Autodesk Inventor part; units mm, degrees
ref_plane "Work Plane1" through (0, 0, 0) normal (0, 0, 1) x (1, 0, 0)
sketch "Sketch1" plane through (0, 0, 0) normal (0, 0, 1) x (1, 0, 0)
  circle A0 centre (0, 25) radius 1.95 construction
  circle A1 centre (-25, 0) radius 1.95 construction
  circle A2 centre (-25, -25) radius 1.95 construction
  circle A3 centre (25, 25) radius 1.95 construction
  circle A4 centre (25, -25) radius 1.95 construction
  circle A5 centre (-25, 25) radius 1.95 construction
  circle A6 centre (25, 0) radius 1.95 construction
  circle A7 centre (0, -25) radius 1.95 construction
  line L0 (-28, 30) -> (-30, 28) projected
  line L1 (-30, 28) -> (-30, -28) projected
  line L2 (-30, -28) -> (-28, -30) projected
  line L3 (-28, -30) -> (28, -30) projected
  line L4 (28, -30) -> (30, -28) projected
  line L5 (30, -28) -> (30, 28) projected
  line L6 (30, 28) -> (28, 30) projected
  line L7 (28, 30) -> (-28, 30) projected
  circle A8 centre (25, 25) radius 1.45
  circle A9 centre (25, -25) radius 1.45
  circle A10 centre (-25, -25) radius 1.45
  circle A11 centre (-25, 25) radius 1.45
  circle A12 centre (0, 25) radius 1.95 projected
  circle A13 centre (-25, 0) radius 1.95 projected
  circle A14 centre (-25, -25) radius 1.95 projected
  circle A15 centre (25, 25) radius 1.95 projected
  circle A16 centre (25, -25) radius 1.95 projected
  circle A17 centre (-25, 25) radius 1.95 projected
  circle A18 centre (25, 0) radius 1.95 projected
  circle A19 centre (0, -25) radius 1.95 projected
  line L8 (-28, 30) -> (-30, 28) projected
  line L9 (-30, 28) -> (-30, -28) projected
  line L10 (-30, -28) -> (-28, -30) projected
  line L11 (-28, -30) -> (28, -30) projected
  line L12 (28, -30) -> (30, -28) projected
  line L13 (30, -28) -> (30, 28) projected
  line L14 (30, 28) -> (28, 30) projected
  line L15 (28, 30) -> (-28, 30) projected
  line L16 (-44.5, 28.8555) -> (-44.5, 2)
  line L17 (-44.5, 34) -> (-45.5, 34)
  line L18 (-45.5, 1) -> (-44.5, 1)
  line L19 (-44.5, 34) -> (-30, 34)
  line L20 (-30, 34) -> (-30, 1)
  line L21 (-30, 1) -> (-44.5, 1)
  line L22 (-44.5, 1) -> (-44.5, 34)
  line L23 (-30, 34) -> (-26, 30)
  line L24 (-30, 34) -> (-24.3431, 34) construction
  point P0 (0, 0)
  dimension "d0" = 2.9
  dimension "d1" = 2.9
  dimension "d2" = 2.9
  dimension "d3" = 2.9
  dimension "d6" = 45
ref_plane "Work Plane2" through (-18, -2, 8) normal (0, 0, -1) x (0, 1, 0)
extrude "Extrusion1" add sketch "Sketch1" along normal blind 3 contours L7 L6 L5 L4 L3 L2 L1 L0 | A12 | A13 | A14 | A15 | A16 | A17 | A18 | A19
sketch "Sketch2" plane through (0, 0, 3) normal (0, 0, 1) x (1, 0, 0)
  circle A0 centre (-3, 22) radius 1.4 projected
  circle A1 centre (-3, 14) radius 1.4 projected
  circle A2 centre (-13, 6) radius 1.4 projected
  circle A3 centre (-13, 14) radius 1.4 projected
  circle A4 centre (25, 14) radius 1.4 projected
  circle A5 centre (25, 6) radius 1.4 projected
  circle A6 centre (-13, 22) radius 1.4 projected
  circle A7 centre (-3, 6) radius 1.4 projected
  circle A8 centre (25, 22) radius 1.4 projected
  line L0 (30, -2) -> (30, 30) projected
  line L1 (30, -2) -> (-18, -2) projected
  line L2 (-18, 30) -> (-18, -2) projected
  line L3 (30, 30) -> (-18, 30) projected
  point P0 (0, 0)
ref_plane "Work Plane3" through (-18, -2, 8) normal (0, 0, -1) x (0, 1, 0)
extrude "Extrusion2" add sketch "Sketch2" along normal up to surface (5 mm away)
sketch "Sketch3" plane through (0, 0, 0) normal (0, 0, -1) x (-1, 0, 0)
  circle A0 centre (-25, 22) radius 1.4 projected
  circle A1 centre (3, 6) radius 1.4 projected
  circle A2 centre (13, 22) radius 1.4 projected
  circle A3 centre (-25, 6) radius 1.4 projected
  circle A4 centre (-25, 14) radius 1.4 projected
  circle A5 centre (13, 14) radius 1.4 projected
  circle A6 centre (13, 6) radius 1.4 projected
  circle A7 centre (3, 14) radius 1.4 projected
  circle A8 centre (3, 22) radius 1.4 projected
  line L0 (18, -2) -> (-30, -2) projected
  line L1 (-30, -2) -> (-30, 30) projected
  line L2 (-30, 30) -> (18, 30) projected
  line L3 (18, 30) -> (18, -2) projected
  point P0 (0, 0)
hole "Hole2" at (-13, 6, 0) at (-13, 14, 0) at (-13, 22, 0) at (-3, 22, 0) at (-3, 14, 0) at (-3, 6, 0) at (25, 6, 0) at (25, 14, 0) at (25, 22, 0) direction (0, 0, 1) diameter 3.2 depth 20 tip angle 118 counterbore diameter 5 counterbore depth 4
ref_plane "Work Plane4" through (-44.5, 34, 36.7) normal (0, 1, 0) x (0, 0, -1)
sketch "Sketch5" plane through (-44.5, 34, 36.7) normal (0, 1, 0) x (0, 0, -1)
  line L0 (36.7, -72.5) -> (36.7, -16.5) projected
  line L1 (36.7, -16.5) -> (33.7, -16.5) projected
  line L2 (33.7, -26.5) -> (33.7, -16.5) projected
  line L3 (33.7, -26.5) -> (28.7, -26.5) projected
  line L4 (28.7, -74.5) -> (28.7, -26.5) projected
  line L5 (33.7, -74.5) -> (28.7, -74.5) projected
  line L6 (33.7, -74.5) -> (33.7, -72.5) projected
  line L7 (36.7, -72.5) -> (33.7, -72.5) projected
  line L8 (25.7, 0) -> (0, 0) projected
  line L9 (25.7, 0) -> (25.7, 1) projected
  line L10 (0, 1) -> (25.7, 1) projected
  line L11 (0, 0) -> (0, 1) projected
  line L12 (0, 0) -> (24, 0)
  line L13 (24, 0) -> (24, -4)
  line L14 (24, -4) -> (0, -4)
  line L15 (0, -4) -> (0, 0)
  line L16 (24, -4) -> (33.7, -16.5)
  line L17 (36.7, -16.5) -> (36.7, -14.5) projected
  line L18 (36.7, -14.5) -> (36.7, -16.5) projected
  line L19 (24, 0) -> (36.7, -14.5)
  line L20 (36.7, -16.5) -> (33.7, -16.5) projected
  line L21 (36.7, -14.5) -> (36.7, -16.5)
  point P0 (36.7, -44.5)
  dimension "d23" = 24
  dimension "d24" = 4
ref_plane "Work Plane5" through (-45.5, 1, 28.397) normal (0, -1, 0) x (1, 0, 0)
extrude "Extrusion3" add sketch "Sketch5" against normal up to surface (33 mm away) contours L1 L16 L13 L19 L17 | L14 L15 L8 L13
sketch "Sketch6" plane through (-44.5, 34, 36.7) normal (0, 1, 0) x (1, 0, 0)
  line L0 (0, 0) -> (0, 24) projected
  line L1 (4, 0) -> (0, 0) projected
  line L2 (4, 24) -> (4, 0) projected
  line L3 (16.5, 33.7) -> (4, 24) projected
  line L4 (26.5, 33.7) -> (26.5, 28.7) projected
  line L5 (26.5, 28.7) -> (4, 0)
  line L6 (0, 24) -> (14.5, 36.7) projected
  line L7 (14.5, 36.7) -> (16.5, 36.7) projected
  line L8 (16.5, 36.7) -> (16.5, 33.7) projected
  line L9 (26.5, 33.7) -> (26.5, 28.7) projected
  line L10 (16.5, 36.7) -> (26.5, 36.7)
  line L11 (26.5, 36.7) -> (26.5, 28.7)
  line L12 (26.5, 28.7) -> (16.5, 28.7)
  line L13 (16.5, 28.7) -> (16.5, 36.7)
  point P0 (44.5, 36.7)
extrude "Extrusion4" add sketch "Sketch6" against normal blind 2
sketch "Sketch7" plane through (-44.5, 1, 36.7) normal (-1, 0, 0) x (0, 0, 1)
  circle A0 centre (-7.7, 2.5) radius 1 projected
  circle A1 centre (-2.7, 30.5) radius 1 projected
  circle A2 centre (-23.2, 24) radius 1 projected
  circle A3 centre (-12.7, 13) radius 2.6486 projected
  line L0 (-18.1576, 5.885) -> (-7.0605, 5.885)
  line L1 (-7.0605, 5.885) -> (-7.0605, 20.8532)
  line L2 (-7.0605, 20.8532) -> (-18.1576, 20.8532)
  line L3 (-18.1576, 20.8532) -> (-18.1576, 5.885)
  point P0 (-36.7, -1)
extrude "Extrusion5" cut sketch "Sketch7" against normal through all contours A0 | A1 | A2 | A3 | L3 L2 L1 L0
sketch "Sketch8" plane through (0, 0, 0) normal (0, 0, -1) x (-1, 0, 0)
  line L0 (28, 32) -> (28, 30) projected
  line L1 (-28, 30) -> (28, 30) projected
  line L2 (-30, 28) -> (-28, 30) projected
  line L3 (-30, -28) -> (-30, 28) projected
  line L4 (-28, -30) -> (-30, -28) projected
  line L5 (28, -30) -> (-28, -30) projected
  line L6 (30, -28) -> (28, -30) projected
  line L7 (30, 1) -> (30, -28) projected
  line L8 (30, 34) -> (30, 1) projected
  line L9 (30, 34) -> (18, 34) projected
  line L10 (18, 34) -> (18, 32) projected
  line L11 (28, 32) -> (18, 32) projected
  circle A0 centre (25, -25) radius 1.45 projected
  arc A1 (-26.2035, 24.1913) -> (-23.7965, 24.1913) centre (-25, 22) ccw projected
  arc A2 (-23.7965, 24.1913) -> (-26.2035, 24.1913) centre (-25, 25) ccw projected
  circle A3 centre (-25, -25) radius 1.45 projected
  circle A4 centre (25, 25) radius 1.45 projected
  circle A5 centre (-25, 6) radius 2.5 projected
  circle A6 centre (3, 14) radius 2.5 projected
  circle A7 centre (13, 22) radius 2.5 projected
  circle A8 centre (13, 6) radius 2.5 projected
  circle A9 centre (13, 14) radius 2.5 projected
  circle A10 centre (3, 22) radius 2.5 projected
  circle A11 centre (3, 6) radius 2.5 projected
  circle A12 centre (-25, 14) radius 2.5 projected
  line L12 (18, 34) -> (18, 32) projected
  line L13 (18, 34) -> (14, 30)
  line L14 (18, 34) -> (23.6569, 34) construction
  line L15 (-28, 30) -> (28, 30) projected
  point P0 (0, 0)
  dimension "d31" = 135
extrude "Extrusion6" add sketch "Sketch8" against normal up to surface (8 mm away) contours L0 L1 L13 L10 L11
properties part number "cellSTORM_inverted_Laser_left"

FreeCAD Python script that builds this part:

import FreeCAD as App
import Part
import Sketcher
from FreeCAD import Vector
Q = App.Units.Quantity


def add_polygon(sketch, points):
    """Adds a closed chain of lines whose ends are joined by coincident constraints."""
    first, n = sketch.GeometryCount, len(points)
    for a, b in zip(points, points[1:] + points[:1]):
        sketch.addGeometry(Part.LineSegment(App.Vector(*a, 0), App.Vector(*b, 0)), False)
    for i in range(n):
        sketch.addConstraint(Sketcher.Constraint("Coincident", first + i, 2, first + (i + 1) % n, 1))

doc = App.newDocument("Part")
body = doc.addObject("PartDesign::Body", "Body")

sketch1 = body.newObject("Sketcher::SketchObject", "Sketch")
sketch1.AttachmentSupport = (doc.getObject("XY_Plane"), [""])
sketch1.MapMode = "FlatFace"
add_polygon(sketch1, [(-28, 30), (-30, 28), (-30, -28), (-28, -30), (28, -30), (30, -28), (30, 28), (28, 30)])
sketch1.addGeometry(Part.Circle(Vector(-25, -25, 0), Vector(0, 0, 1), 1.45), False)
sketch1.addGeometry(Part.Circle(Vector(25, -25, 0), Vector(0, 0, 1), 1.45), False)
sketch1.addGeometry(Part.Circle(Vector(-25, 25, 0), Vector(0, 0, 1), 1.45), False)
sketch1.addGeometry(Part.Circle(Vector(25, 25, 0), Vector(0, 0, 1), 1.45), False)
sketch1.addConstraint(Sketcher.Constraint("Vertical", 1))
sketch1.addConstraint(Sketcher.Constraint("Horizontal", 3))
sketch1.addConstraint(Sketcher.Constraint("Vertical", 5))
sketch1.addConstraint(Sketcher.Constraint("Horizontal", 7))
sketch1.addConstraint(Sketcher.Constraint("Equal", 8, 9))
sketch1.addConstraint(Sketcher.Constraint("Equal", 9, 10))
sketch1.addConstraint(Sketcher.Constraint("Equal", 10, 11))
sketch1.addConstraint(Sketcher.Constraint("Symmetric", 9, 3, 10, 3, -1, 1))
sketch1.addConstraint(Sketcher.Constraint("Symmetric", 8, 3, 11, 3, -1, 1))
sketch1.addConstraint(Sketcher.Constraint("Symmetric", 0, 2, 4, 2, -1, 1))
sketch1.addConstraint(Sketcher.Constraint("Symmetric", 2, 2, 6, 2, -1, 1))
sketch1.addConstraint(Sketcher.Constraint("Symmetric", 8, 3, 9, 3, -2))
sketch1.addConstraint(Sketcher.Constraint("Perpendicular", 0, 2))
sketch1.addConstraint(Sketcher.Constraint("Perpendicular", 2, 4))
sketch1.addConstraint(Sketcher.Constraint("Perpendicular", 4, 6))
sketch1.addConstraint(Sketcher.Constraint("Horizontal", 1, 2, 4, 2))
sketch1.addConstraint(Sketcher.Constraint("Vertical", 3, 2, 6, 2))
sketch1.addConstraint(Sketcher.Constraint("Equal", 7, 1))
sketch1.addConstraint(Sketcher.Constraint("Diameter", 8, Q("2.9 mm")))
sketch1.addConstraint(Sketcher.Constraint("DistanceX", 3, 1, 3, 2, Q("56 mm")))
sketch1.addConstraint(Sketcher.Constraint("DistanceX", 8, 3, -1, 1, Q("25 mm")))
sketch1.addConstraint(Sketcher.Constraint("DistanceY", 8, 3, -1, 1, Q("25 mm")))
sketch1.addConstraint(Sketcher.Constraint("DistanceX", 0, 2, -1, 1, Q("30 mm")))
pad1 = body.newObject("PartDesign::Pad", "Pad")
pad1.Profile = sketch1
pad1.Length = 3

sketch2 = body.newObject("Sketcher::SketchObject", "Sketch001")
sketch2.AttachmentSupport = (doc.getObject("XY_Plane"), [""])
sketch2.MapMode = "FlatFace"
sketch2.AttachmentOffset = App.Placement(Vector(0, 0, 3), App.Rotation())
add_polygon(sketch2, [(-18, -2), (30, -2), (30, 30), (-18, 30)])
sketch2.addGeometry(Part.Circle(Vector(-13, 6, 0), Vector(0, 0, 1), 1.4), False)
sketch2.addGeometry(Part.Circle(Vector(-3, 6, 0), Vector(0, 0, 1), 1.4), False)
sketch2.addGeometry(Part.Circle(Vector(25, 6, 0), Vector(0, 0, 1), 1.4), False)
sketch2.addGeometry(Part.Circle(Vector(-13, 14, 0), Vector(0, 0, 1), 1.4), False)
sketch2.addGeometry(Part.Circle(Vector(-3, 14, 0), Vector(0, 0, 1), 1.4), False)
sketch2.addGeometry(Part.Circle(Vector(-13, 22, 0), Vector(0, 0, 1), 1.4), False)
sketch2.addGeometry(Part.Circle(Vector(-3, 22, 0), Vector(0, 0, 1), 1.4), False)
sketch2.addGeometry(Part.Circle(Vector(25, 14, 0), Vector(0, 0, 1), 1.4), False)
sketch2.addGeometry(Part.Circle(Vector(25, 22, 0), Vector(0, 0, 1), 1.4), False)
sketch2.addConstraint(Sketcher.Constraint("Horizontal", 0))
sketch2.addConstraint(Sketcher.Constraint("Vertical", 1))
sketch2.addConstraint(Sketcher.Constraint("Horizontal", 2))
sketch2.addConstraint(Sketcher.Constraint("Vertical", 3))
sketch2.addConstraint(Sketcher.Constraint("Equal", 4, 5))
sketch2.addConstraint(Sketcher.Constraint("Equal", 5, 6))
sketch2.addConstraint(Sketcher.Constraint("Equal", 6, 7))
sketch2.addConstraint(Sketcher.Constraint("Equal", 7, 8))
sketch2.addConstraint(Sketcher.Constraint("Equal", 8, 9))
sketch2.addConstraint(Sketcher.Constraint("Equal", 9, 10))
sketch2.addConstraint(Sketcher.Constraint("Equal", 10, 11))
sketch2.addConstraint(Sketcher.Constraint("Equal", 11, 12))
sketch2.addConstraint(Sketcher.Constraint("Horizontal", 4, 3, 5, 3))
sketch2.addConstraint(Sketcher.Constraint("Horizontal", 5, 3, 6, 3))
sketch2.addConstraint(Sketcher.Constraint("Horizontal", 7, 3, 8, 3))
sketch2.addConstraint(Sketcher.Constraint("Horizontal", 9, 3, 10, 3))
sketch2.addConstraint(Sketcher.Constraint("Horizontal", 8, 3, 11, 3))
sketch2.addConstraint(Sketcher.Constraint("Horizontal", 10, 3, 12, 3))
sketch2.addConstraint(Sketcher.Constraint("Vertical", 4, 3, 7, 3))
sketch2.addConstraint(Sketcher.Constraint("Vertical", 5, 3, 8, 3))
sketch2.addConstraint(Sketcher.Constraint("Vertical", 7, 3, 9, 3))
sketch2.addConstraint(Sketcher.Constraint("Vertical", 8, 3, 10, 3))
sketch2.addConstraint(Sketcher.Constraint("Vertical", 6, 3, 11, 3))
sketch2.addConstraint(Sketcher.Constraint("Vertical", 11, 3, 12, 3))
sketch2.addConstraint(Sketcher.Constraint("Diameter", 4, Q("2.8 mm")))
sketch2.addConstraint(Sketcher.Constraint("DistanceX", 0, 1, 0, 2, Q("48 mm")))
sketch2.addConstraint(Sketcher.Constraint("DistanceY", 1, 1, 1, 2, Q("32 mm")))
sketch2.addConstraint(Sketcher.Constraint("DistanceX", 4, 3, -1, 1, Q("13 mm")))
sketch2.addConstraint(Sketcher.Constraint("DistanceY", -1, 1, 4, 3, Q("6 mm")))
sketch2.addConstraint(Sketcher.Constraint("DistanceX", 5, 3, -1, 1, Q("3 mm")))
sketch2.addConstraint(Sketcher.Constraint("DistanceX", -1, 1, 6, 3, Q("25 mm")))
sketch2.addConstraint(Sketcher.Constraint("DistanceY", -1, 1, 7, 3, Q("14 mm")))
sketch2.addConstraint(Sketcher.Constraint("DistanceY", -1, 1, 9, 3, Q("22 mm")))
sketch2.addConstraint(Sketcher.Constraint("DistanceX", -1, 1, 0, 2, Q("30 mm")))
sketch2.addConstraint(Sketcher.Constraint("DistanceY", 0, 2, -1, 1, Q("2 mm")))
pad2 = body.newObject("PartDesign::Pad", "Pad001")
pad2.Profile = sketch2
pad2.Length = 5

sketch3 = body.newObject("Sketcher::SketchObject", "Sketch002")
sketch3.AttachmentSupport = (doc.getObject("XY_Plane"), [""])
sketch3.MapMode = "FlatFace"
sketch3.addGeometry(Part.Circle(Vector(-13, 6, 0), Vector(0, 0, 1), 1.6), False)
sketch3.addGeometry(Part.Circle(Vector(-13, 14, 0), Vector(0, 0, 1), 1.6), False)
sketch3.addGeometry(Part.Circle(Vector(-13, 22, 0), Vector(0, 0, 1), 1.6), False)
sketch3.addGeometry(Part.Circle(Vector(-3, 22, 0), Vector(0, 0, 1), 1.6), False)
sketch3.addGeometry(Part.Circle(Vector(-3, 14, 0), Vector(0, 0, 1), 1.6), False)
sketch3.addGeometry(Part.Circle(Vector(-3, 6, 0), Vector(0, 0, 1), 1.6), False)
sketch3.addGeometry(Part.Circle(Vector(25, 6, 0), Vector(0, 0, 1), 1.6), False)
sketch3.addGeometry(Part.Circle(Vector(25, 14, 0), Vector(0, 0, 1), 1.6), False)
sketch3.addGeometry(Part.Circle(Vector(25, 22, 0), Vector(0, 0, 1), 1.6), False)
sketch3.addConstraint(Sketcher.Constraint("Equal", 0, 1))
sketch3.addConstraint(Sketcher.Constraint("Equal", 1, 2))
sketch3.addConstraint(Sketcher.Constraint("Equal", 2, 3))
sketch3.addConstraint(Sketcher.Constraint("Equal", 3, 4))
sketch3.addConstraint(Sketcher.Constraint("Equal", 4, 5))
sketch3.addConstraint(Sketcher.Constraint("Equal", 5, 6))
sketch3.addConstraint(Sketcher.Constraint("Equal", 6, 7))
sketch3.addConstraint(Sketcher.Constraint("Equal", 7, 8))
sketch3.addConstraint(Sketcher.Constraint("Horizontal", 2, 3, 3, 3))
sketch3.addConstraint(Sketcher.Constraint("Horizontal", 1, 3, 4, 3))
sketch3.addConstraint(Sketcher.Constraint("Horizontal", 0, 3, 5, 3))
sketch3.addConstraint(Sketcher.Constraint("Horizontal", 5, 3, 6, 3))
sketch3.addConstraint(Sketcher.Constraint("Horizontal", 4, 3, 7, 3))
sketch3.addConstraint(Sketcher.Constraint("Horizontal", 3, 3, 8, 3))
sketch3.addConstraint(Sketcher.Constraint("Vertical", 0, 3, 1, 3))
sketch3.addConstraint(Sketcher.Constraint("Vertical", 1, 3, 2, 3))
sketch3.addConstraint(Sketcher.Constraint("Vertical", 3, 3, 4, 3))
sketch3.addConstraint(Sketcher.Constraint("Vertical", 4, 3, 5, 3))
sketch3.addConstraint(Sketcher.Constraint("Vertical", 6, 3, 7, 3))
sketch3.addConstraint(Sketcher.Constraint("Vertical", 7, 3, 8, 3))
sketch3.addConstraint(Sketcher.Constraint("Diameter", 0, Q("3.2 mm")))
sketch3.addConstraint(Sketcher.Constraint("DistanceX", 0, 3, -1, 1, Q("13 mm")))
sketch3.addConstraint(Sketcher.Constraint("DistanceY", -1, 1, 0, 3, Q("6 mm")))
sketch3.addConstraint(Sketcher.Constraint("DistanceY", -1, 1, 1, 3, Q("14 mm")))
sketch3.addConstraint(Sketcher.Constraint("DistanceY", -1, 1, 2, 3, Q("22 mm")))
sketch3.addConstraint(Sketcher.Constraint("DistanceX", 3, 3, -1, 1, Q("3 mm")))
sketch3.addConstraint(Sketcher.Constraint("DistanceX", -1, 1, 6, 3, Q("25 mm")))
doc.recompute()
hole = body.newObject("PartDesign::Hole", "Hole")
hole.Profile = sketch3
hole.ThreadType = "None"
hole.Diameter = 3.2
hole.DepthType = "Dimension"
hole.Depth = 20
hole.DrillPoint = "Angled"
hole.DrillPointAngle = 118
hole.HoleCutType = "Counterbore"
hole.HoleCutDiameter = 5
hole.HoleCutDepth = 4
hole.Reversed = True

sketch4 = body.newObject("Sketcher::SketchObject", "Sketch003")
sketch4.AttachmentSupport = (doc.getObject("XZ_Plane"), [""])
sketch4.MapMode = "FlatFace"
sketch4.AttachmentOffset = App.Placement(Vector(0, 0, -34), App.Rotation())
add_polygon(sketch4, [(-28, 3), (-28, 0), (-30, 0), (-44.5, 12.7), (-44.5, 36.7), (-40.5, 36.7), (-40.5, 12.7)])
sketch4.addConstraint(Sketcher.Constraint("Vertical", 0))
sketch4.addConstraint(Sketcher.Constraint("Horizontal", 1))
sketch4.addConstraint(Sketcher.Constraint("Vertical", 3))
sketch4.addConstraint(Sketcher.Constraint("Horizontal", 4))
sketch4.addConstraint(Sketcher.Constraint("Vertical", 5))
sketch4.addConstraint(Sketcher.Constraint("PointOnObject", 0, 2, -1))
sketch4.addConstraint(Sketcher.Constraint("Horizontal", 2, 2, 5, 2))
sketch4.addConstraint(Sketcher.Constraint("DistanceX", 4, 1, 4, 2, Q("4 mm")))
sketch4.addConstraint(Sketcher.Constraint("DistanceY", 3, 1, 3, 2, Q("24 mm")))
sketch4.addConstraint(Sketcher.Constraint("DistanceX", 1, 2, 1, 1, Q("2 mm")))
sketch4.addConstraint(Sketcher.Constraint("DistanceY", 0, 2, 0, 1, Q("3 mm")))
sketch4.addConstraint(Sketcher.Constraint("DistanceX", 0, 2, -1, 1, Q("28 mm")))
sketch4.addConstraint(Sketcher.Constraint("DistanceX", 2, 2, -1, 1, Q("44.5 mm")))
sketch4.addConstraint(Sketcher.Constraint("DistanceY", -1, 1, 2, 2, Q("12.7 mm")))
pad3 = body.newObject("PartDesign::Pad", "Pad002")
pad3.Profile = sketch4
pad3.Length = 33

sketch5 = body.newObject("Sketcher::SketchObject", "Sketch004")
sketch5.AttachmentSupport = (doc.getObject("XZ_Plane"), [""])
sketch5.MapMode = "FlatFace"
sketch5.AttachmentOffset = App.Placement(Vector(0, 0, -34), App.Rotation())
add_polygon(sketch5, [(-44.5, 12.7), (-44.5, 36.7), (-40.5, 36.7), (-18, 8), (-18, 0), (-30, 0)])
sketch5.addConstraint(Sketcher.Constraint("Vertical", 0))
sketch5.addConstraint(Sketcher.Constraint("Horizontal", 1))
sketch5.addConstraint(Sketcher.Constraint("Vertical", 3))
sketch5.addConstraint(Sketcher.Constraint("Horizontal", 4))
sketch5.addConstraint(Sketcher.Constraint("PointOnObject", 3, 2, -1))
sketch5.addConstraint(Sketcher.Constraint("DistanceX", 1, 1, 1, 2, Q("4 mm")))
sketch5.addConstraint(Sketcher.Constraint("DistanceX", 4, 2, 4, 1, Q("12 mm")))
sketch5.addConstraint(Sketcher.Constraint("DistanceY", 0, 1, 0, 2, Q("24 mm")))
sketch5.addConstraint(Sketcher.Constraint("DistanceY", 3, 2, 3, 1, Q("8 mm")))
sketch5.addConstraint(Sketcher.Constraint("DistanceX", 2, 2, -1, 1, Q("18 mm")))
sketch5.addConstraint(Sketcher.Constraint("DistanceX", 0, 2, -1, 1, Q("44.5 mm")))
sketch5.addConstraint(Sketcher.Constraint("DistanceY", -1, 1, 0, 2, Q("36.7 mm")))
pad4 = body.newObject("PartDesign::Pad", "Pad003")
pad4.Profile = sketch5
pad4.Length = 2

sketch6 = body.newObject("Sketcher::SketchObject", "Sketch005")
sketch6.AttachmentSupport = (doc.getObject("YZ_Plane"), [""])
sketch6.MapMode = "FlatFace"
sketch6.AttachmentOffset = App.Placement(Vector(0, 0, -44.5), App.Rotation())
sketch6.addGeometry(Part.Circle(Vector(3.5, 29, 0), Vector(0, 0, 1), 1), False)
sketch6.addGeometry(Part.Circle(Vector(31.5, 34, 0), Vector(0, 0, 1), 1), False)
sketch6.addGeometry(Part.Circle(Vector(25, 13.5, 0), Vector(0, 0, 1), 1), False)
add_polygon(sketch6, [(21.8532, 18.5424), (6.885, 18.5424), (6.885, 29.6395), (21.8532, 29.6395)])
sketch6.addConstraint(Sketcher.Constraint("Horizontal", 3))
sketch6.addConstraint(Sketcher.Constraint("Vertical", 4))
sketch6.addConstraint(Sketcher.Constraint("Horizontal", 5))
sketch6.addConstraint(Sketcher.Constraint("Vertical", 6))
sketch6.addConstraint(Sketcher.Constraint("Equal", 0, 1))
sketch6.addConstraint(Sketcher.Constraint("Equal", 1, 2))
sketch6.addConstraint(Sketcher.Constraint("Diameter", 0, Q("2 mm")))
sketch6.addConstraint(Sketcher.Constraint("DistanceY", -1, 1, 0, 3, Q("29 mm")))
sketch6.addConstraint(Sketcher.Constraint("DistanceY", -1, 1, 1, 3, Q("34 mm")))
sketch6.addConstraint(Sketcher.Constraint("DistanceX", -1, 1, 2, 3, Q("25 mm")))
sketch6.addConstraint(Sketcher.Constraint("DistanceX", 0, 3, 1, 3, Q("28 mm")))
sketch6.addConstraint(Sketcher.Constraint("DistanceX", -1, 1, 0, 3, Q("3.5 mm")))
sketch6.addConstraint(Sketcher.Constraint("DistanceY", -1, 1, 2, 3, Q("13.5 mm")))
sketch6.addConstraint(Sketcher.Constraint("DistanceY", 4, 1, 4, 2, Q("11.097 mm")))
sketch6.addConstraint(Sketcher.Constraint("DistanceX", 3, 2, 3, 1, Q("14.9682 mm")))
sketch6.addConstraint(Sketcher.Constraint("DistanceX", -1, 1, 3, 2, Q("6.885 mm")))
sketch6.addConstraint(Sketcher.Constraint("DistanceY", -1, 1, 3, 2, Q("18.5424 mm")))
pocket1 = body.newObject("PartDesign::Pocket", "Pocket")
pocket1.Profile = sketch6
pocket1.Type = "ThroughAll"
pocket1.Reversed = True

sketch7 = body.newObject("Sketcher::SketchObject", "Sketch006")
sketch7.AttachmentSupport = (doc.getObject("XY_Plane"), [""])
sketch7.MapMode = "FlatFace"
add_polygon(sketch7, [(-28, 30), (-28, 32), (-18, 32), (-18, 34), (-14, 30)])
sketch7.addConstraint(Sketcher.Constraint("Vertical", 0))
sketch7.addConstraint(Sketcher.Constraint("Horizontal", 1))
sketch7.addConstraint(Sketcher.Constraint("Vertical", 2))
sketch7.addConstraint(Sketcher.Constraint("Horizontal", 4))
sketch7.addConstraint(Sketcher.Constraint("Equal", 0, 2))
sketch7.addConstraint(Sketcher.Constraint("DistanceX", 1, 1, 1, 2, Q("10 mm")))
sketch7.addConstraint(Sketcher.Constraint("DistanceX", 4, 2, 4, 1, Q("14 mm")))
sketch7.addConstraint(Sketcher.Constraint("DistanceY", 0, 1, 0, 2, Q("2 mm")))
sketch7.addConstraint(Sketcher.Constraint("DistanceX", 0, 2, -1, 1, Q("28 mm")))
sketch7.addConstraint(Sketcher.Constraint("DistanceY", -1, 1, 0, 2, Q("32 mm")))
pad5 = body.newObject("PartDesign::Pad", "Pad004")
pad5.Profile = sketch7
pad5.Length = 8

doc.recompute()
